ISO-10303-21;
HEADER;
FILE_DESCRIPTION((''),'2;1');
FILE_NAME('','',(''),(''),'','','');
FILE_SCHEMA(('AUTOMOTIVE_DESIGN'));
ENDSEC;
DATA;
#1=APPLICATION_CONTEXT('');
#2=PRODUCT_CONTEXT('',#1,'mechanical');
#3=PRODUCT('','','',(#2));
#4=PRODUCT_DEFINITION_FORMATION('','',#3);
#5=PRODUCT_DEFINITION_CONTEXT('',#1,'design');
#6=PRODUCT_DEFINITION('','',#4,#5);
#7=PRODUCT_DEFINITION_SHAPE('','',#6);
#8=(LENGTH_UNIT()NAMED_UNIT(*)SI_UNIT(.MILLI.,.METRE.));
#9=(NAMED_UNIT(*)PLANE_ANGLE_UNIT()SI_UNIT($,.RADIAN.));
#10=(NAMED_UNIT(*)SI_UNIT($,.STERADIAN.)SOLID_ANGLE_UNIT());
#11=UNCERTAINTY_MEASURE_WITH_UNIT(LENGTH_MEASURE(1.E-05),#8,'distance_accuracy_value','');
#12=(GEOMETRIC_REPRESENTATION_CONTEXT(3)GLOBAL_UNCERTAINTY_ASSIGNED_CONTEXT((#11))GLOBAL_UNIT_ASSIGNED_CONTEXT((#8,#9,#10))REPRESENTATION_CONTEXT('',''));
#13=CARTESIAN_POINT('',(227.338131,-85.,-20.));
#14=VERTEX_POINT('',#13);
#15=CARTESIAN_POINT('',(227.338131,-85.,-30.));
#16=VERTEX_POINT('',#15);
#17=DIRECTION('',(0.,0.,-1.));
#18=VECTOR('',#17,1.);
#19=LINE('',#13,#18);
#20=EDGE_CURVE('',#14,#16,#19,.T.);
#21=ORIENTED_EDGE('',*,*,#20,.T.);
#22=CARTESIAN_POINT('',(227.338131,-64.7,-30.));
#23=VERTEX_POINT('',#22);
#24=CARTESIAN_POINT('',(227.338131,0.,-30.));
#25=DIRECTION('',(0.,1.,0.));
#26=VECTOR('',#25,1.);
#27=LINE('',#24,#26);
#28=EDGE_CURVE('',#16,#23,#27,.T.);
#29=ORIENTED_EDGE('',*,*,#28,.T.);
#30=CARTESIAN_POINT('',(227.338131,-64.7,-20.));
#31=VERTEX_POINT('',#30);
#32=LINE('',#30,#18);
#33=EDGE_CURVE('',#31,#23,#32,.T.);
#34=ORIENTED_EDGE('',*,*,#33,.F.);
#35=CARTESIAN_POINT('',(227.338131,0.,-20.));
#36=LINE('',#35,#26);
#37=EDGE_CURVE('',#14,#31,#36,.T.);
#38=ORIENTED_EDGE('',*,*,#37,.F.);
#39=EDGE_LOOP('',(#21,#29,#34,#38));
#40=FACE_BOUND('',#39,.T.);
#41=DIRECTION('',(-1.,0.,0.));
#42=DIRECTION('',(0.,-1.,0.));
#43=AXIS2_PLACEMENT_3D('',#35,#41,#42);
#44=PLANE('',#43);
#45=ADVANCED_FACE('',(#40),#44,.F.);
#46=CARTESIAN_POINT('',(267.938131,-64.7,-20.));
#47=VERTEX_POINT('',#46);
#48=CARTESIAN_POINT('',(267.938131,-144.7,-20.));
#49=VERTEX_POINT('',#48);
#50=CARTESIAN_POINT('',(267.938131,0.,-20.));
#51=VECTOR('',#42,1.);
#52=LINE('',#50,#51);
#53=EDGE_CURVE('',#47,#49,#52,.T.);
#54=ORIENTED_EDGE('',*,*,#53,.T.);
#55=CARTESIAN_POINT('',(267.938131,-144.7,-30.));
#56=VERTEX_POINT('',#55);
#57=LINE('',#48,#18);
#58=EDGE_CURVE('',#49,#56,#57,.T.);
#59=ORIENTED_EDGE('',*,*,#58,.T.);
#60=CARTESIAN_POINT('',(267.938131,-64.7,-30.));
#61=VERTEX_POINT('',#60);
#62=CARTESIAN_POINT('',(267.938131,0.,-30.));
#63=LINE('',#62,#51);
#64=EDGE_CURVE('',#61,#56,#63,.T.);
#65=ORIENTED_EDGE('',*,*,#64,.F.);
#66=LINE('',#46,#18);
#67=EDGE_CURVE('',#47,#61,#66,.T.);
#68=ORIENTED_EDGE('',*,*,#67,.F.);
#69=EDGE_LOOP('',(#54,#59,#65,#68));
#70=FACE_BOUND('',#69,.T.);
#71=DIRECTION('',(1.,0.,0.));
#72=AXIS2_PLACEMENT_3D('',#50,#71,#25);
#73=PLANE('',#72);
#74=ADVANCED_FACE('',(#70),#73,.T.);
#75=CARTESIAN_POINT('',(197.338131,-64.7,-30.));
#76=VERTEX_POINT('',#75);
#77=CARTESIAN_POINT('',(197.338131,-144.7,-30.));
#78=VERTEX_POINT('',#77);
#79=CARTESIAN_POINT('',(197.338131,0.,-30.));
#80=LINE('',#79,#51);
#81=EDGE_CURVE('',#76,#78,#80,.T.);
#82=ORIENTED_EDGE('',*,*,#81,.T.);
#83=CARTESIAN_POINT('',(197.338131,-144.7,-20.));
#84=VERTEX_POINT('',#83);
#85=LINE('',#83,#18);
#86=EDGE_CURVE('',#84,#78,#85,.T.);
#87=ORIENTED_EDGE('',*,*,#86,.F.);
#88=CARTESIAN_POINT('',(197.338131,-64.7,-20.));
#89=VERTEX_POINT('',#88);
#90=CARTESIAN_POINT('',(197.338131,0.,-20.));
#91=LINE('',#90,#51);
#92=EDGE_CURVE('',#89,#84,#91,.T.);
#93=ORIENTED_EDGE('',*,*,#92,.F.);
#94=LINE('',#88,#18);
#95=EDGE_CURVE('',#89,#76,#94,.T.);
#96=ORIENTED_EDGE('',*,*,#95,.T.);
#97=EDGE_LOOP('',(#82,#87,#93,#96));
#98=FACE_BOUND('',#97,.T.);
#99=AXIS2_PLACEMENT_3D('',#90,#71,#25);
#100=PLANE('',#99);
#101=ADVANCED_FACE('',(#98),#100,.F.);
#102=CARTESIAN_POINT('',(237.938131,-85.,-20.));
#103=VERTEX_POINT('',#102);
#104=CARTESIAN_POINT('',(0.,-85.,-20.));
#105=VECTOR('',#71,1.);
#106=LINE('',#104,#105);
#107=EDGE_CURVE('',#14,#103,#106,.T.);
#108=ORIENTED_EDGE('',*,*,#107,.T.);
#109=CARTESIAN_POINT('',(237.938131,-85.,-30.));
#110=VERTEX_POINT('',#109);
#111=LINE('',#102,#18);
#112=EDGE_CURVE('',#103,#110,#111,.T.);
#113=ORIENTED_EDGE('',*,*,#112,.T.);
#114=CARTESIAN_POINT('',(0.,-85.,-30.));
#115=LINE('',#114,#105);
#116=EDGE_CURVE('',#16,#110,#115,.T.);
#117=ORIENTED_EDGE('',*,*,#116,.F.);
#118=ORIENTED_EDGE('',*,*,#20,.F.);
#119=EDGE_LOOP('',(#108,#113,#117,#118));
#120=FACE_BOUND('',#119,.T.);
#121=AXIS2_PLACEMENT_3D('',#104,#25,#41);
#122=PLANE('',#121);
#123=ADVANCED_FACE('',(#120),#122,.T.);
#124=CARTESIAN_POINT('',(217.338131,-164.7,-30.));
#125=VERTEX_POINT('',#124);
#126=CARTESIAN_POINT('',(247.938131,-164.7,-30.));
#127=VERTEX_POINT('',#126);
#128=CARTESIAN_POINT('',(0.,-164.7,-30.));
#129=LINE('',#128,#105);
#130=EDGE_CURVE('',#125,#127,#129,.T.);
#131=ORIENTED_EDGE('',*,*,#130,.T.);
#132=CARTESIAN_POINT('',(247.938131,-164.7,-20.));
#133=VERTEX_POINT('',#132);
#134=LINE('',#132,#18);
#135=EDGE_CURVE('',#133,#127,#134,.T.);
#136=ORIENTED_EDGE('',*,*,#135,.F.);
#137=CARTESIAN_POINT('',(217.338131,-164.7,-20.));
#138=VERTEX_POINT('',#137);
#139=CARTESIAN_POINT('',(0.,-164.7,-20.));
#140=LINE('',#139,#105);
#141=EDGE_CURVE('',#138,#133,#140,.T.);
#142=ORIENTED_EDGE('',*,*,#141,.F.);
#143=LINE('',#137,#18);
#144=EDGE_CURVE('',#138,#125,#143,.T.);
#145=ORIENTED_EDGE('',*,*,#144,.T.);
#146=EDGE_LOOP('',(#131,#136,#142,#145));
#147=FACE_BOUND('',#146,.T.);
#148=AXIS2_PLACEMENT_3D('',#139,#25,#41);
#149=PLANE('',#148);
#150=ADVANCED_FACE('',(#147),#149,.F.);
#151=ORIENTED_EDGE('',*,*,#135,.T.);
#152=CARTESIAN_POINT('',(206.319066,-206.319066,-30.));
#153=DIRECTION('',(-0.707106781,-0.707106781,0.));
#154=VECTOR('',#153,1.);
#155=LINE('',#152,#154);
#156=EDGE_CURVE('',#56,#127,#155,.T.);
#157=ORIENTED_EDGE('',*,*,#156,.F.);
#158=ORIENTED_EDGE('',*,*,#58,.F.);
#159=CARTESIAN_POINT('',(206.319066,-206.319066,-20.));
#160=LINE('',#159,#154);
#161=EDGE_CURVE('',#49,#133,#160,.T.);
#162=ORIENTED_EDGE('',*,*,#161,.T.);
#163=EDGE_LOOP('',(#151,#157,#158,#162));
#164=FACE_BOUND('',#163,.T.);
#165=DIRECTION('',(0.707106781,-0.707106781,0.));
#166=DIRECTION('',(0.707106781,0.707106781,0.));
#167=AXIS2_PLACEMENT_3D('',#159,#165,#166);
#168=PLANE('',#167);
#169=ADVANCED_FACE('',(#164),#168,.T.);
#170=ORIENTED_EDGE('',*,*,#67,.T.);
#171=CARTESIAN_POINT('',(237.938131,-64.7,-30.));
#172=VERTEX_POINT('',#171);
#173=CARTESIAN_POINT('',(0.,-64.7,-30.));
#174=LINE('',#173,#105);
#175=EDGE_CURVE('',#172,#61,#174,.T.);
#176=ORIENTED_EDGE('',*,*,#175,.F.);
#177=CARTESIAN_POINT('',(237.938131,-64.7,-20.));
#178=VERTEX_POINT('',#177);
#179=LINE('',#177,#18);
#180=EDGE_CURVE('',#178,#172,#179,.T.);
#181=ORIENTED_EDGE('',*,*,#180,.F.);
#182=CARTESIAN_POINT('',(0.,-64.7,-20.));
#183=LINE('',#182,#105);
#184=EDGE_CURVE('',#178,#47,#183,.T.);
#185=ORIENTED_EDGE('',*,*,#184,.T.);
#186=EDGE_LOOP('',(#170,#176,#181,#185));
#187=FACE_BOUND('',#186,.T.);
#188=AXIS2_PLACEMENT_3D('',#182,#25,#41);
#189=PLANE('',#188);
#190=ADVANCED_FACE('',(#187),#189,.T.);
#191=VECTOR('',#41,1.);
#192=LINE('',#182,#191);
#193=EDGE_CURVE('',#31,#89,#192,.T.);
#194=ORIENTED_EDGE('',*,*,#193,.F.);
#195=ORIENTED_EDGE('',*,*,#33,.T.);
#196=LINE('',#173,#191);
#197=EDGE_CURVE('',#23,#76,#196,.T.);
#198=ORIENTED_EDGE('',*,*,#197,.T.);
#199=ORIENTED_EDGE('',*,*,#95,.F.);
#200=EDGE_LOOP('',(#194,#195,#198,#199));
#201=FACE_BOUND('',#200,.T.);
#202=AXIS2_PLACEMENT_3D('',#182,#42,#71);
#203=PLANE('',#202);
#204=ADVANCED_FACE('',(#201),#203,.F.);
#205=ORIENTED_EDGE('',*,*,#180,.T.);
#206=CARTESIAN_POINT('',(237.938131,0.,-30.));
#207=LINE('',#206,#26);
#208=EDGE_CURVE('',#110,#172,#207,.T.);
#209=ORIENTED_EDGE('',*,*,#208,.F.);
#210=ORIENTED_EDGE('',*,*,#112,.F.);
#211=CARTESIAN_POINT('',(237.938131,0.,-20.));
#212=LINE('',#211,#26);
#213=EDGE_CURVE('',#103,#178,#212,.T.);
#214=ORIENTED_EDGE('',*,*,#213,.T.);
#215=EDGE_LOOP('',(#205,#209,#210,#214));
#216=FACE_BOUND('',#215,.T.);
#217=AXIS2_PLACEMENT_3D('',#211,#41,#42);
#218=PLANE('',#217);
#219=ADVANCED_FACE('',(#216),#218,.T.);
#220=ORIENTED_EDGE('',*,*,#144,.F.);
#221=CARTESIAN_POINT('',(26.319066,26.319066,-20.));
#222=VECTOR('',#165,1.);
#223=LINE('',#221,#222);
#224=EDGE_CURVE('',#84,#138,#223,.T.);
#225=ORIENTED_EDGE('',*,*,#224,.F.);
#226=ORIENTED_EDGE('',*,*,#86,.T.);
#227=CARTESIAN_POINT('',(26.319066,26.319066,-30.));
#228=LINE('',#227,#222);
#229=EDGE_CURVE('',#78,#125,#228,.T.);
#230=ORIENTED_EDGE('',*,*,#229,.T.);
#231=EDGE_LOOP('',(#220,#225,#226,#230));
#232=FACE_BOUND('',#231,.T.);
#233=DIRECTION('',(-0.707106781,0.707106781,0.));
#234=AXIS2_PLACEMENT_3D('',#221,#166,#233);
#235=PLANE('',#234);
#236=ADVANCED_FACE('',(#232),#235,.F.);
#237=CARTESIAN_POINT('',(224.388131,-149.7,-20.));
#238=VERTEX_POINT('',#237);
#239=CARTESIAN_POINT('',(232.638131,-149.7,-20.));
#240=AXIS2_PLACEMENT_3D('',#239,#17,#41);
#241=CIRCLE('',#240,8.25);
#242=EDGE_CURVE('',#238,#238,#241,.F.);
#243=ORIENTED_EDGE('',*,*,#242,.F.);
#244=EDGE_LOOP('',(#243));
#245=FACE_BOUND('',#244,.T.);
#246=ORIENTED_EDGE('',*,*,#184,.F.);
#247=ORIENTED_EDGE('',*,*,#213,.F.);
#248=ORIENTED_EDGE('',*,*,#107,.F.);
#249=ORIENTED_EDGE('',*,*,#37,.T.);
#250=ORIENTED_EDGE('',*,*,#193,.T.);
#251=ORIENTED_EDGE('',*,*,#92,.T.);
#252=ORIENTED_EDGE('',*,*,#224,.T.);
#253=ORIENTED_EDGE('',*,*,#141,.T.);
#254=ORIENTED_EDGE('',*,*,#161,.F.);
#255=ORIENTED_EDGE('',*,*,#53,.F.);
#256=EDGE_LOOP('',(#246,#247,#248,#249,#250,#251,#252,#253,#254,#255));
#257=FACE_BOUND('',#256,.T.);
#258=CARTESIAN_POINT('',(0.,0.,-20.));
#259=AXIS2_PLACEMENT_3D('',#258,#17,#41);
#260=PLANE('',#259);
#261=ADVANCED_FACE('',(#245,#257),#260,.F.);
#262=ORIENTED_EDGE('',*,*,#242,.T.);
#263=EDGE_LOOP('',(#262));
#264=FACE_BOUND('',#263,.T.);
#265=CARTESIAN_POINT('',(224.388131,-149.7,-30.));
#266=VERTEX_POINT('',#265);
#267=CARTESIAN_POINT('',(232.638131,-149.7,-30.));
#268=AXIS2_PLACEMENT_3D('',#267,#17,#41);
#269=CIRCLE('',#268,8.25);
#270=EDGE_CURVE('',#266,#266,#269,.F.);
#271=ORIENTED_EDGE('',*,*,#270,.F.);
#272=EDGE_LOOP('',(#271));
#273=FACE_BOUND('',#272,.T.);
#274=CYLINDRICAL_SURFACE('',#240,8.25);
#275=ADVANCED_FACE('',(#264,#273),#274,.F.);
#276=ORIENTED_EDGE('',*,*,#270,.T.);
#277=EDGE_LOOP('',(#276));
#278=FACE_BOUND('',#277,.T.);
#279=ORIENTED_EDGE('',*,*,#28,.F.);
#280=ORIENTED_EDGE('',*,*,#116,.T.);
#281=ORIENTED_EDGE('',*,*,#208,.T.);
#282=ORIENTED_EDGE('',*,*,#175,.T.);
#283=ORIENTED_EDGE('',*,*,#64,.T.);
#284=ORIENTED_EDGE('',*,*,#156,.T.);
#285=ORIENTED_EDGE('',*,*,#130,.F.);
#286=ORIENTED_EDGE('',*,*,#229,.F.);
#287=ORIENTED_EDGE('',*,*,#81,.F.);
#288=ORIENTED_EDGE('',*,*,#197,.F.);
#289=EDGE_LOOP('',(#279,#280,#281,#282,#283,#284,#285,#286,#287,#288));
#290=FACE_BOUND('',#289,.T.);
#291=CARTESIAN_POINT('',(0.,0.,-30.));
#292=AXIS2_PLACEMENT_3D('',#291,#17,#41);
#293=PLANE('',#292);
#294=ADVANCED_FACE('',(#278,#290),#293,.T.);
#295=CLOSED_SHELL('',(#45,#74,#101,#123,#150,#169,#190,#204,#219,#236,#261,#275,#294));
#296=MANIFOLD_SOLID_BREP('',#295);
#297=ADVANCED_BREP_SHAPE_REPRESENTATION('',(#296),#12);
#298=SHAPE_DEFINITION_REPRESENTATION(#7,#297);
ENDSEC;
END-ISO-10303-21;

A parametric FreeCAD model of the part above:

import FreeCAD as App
import Part
import Sketcher


def add_polygon(sketch, points):
    """Adds a closed chain of lines whose ends are joined by coincident constraints."""
    first, n = sketch.GeometryCount, len(points)
    for a, b in zip(points, points[1:] + points[:1]):
        sketch.addGeometry(Part.LineSegment(App.Vector(*a, 0), App.Vector(*b, 0)), False)
    for i in range(n):
        sketch.addConstraint(Sketcher.Constraint("Coincident", first + i, 2, first + (i + 1) % n, 1))

doc = App.newDocument("Part")
body = doc.addObject("PartDesign::Body", "Body")

# Sketch on XY plane
sketch1 = body.newObject("Sketcher::SketchObject", "Sketch")
sketch1.AttachmentSupport = (doc.getObject("XY_Plane"), [""])
sketch1.MapMode = "FlatFace"
sketch1.AttachmentOffset = App.Placement(App.Vector(0, 0, -25), App.Rotation())
add_polygon(sketch1, [(237.938131, -85), (227.338131, -85), (227.338131, -64.7), (197.338131, -64.7), (197.338131, -144.7), (217.338131, -164.7), (247.938131, -164.7), (267.938131, -144.7), (267.938131, -64.7), (237.938131, -64.7)])  # lines 0-9
sketch1.addGeometry(Part.Circle(App.Vector(232.638131, -149.7, 0), App.Vector(0, 0, 1), 8.25), False)  # 10
sketch1.addConstraint([
    Sketcher.Constraint("Horizontal", 0),
    Sketcher.Constraint("Vertical", 1),
    Sketcher.Constraint("Horizontal", 2),
    Sketcher.Constraint("Vertical", 3),
    Sketcher.Constraint("Horizontal", 5),
    Sketcher.Constraint("Vertical", 7),
    Sketcher.Constraint("Horizontal", 8),
    Sketcher.Constraint("Vertical", 9),
    Sketcher.Constraint("Perpendicular", 4, 6),
    Sketcher.Constraint("Horizontal", 3, 2, 6, 2),
    Sketcher.Constraint("Horizontal", 2, 2, 7, 2),
    Sketcher.Constraint("Equal", 2, 8),
    Sketcher.Constraint("Equal", 4, 6),
    Sketcher.Constraint("Diameter", 10, 16.5),
    Sketcher.Constraint("DistanceX", 2, 2, 2, 1, 30.0),
    Sketcher.Constraint("DistanceY", 3, 2, 3, 1, 80.0),
    Sketcher.Constraint("DistanceX", 0, 2, 0, 1, 10.6),
    Sketcher.Constraint("DistanceX", 5, 1, 5, 2, 30.6),
    Sketcher.Constraint("DistanceY", 1, 1, 1, 2, 20.3),
    Sketcher.Constraint("DistanceY", 0, 2, -1, 1, 85.0),
    Sketcher.Constraint("DistanceY", 10, 3, 1, 2, 85.0),
    Sketcher.Constraint("DistanceX", 0, 2, 10, 3, 5.3),
    Sketcher.Constraint("DistanceX", -1, 1, 10, 3, 232.638131),
])
pad1 = body.newObject("PartDesign::Pad", "Pad")
pad1.Profile = sketch1
pad1.Length = 10
pad1.Midplane = True

doc.recompute()
